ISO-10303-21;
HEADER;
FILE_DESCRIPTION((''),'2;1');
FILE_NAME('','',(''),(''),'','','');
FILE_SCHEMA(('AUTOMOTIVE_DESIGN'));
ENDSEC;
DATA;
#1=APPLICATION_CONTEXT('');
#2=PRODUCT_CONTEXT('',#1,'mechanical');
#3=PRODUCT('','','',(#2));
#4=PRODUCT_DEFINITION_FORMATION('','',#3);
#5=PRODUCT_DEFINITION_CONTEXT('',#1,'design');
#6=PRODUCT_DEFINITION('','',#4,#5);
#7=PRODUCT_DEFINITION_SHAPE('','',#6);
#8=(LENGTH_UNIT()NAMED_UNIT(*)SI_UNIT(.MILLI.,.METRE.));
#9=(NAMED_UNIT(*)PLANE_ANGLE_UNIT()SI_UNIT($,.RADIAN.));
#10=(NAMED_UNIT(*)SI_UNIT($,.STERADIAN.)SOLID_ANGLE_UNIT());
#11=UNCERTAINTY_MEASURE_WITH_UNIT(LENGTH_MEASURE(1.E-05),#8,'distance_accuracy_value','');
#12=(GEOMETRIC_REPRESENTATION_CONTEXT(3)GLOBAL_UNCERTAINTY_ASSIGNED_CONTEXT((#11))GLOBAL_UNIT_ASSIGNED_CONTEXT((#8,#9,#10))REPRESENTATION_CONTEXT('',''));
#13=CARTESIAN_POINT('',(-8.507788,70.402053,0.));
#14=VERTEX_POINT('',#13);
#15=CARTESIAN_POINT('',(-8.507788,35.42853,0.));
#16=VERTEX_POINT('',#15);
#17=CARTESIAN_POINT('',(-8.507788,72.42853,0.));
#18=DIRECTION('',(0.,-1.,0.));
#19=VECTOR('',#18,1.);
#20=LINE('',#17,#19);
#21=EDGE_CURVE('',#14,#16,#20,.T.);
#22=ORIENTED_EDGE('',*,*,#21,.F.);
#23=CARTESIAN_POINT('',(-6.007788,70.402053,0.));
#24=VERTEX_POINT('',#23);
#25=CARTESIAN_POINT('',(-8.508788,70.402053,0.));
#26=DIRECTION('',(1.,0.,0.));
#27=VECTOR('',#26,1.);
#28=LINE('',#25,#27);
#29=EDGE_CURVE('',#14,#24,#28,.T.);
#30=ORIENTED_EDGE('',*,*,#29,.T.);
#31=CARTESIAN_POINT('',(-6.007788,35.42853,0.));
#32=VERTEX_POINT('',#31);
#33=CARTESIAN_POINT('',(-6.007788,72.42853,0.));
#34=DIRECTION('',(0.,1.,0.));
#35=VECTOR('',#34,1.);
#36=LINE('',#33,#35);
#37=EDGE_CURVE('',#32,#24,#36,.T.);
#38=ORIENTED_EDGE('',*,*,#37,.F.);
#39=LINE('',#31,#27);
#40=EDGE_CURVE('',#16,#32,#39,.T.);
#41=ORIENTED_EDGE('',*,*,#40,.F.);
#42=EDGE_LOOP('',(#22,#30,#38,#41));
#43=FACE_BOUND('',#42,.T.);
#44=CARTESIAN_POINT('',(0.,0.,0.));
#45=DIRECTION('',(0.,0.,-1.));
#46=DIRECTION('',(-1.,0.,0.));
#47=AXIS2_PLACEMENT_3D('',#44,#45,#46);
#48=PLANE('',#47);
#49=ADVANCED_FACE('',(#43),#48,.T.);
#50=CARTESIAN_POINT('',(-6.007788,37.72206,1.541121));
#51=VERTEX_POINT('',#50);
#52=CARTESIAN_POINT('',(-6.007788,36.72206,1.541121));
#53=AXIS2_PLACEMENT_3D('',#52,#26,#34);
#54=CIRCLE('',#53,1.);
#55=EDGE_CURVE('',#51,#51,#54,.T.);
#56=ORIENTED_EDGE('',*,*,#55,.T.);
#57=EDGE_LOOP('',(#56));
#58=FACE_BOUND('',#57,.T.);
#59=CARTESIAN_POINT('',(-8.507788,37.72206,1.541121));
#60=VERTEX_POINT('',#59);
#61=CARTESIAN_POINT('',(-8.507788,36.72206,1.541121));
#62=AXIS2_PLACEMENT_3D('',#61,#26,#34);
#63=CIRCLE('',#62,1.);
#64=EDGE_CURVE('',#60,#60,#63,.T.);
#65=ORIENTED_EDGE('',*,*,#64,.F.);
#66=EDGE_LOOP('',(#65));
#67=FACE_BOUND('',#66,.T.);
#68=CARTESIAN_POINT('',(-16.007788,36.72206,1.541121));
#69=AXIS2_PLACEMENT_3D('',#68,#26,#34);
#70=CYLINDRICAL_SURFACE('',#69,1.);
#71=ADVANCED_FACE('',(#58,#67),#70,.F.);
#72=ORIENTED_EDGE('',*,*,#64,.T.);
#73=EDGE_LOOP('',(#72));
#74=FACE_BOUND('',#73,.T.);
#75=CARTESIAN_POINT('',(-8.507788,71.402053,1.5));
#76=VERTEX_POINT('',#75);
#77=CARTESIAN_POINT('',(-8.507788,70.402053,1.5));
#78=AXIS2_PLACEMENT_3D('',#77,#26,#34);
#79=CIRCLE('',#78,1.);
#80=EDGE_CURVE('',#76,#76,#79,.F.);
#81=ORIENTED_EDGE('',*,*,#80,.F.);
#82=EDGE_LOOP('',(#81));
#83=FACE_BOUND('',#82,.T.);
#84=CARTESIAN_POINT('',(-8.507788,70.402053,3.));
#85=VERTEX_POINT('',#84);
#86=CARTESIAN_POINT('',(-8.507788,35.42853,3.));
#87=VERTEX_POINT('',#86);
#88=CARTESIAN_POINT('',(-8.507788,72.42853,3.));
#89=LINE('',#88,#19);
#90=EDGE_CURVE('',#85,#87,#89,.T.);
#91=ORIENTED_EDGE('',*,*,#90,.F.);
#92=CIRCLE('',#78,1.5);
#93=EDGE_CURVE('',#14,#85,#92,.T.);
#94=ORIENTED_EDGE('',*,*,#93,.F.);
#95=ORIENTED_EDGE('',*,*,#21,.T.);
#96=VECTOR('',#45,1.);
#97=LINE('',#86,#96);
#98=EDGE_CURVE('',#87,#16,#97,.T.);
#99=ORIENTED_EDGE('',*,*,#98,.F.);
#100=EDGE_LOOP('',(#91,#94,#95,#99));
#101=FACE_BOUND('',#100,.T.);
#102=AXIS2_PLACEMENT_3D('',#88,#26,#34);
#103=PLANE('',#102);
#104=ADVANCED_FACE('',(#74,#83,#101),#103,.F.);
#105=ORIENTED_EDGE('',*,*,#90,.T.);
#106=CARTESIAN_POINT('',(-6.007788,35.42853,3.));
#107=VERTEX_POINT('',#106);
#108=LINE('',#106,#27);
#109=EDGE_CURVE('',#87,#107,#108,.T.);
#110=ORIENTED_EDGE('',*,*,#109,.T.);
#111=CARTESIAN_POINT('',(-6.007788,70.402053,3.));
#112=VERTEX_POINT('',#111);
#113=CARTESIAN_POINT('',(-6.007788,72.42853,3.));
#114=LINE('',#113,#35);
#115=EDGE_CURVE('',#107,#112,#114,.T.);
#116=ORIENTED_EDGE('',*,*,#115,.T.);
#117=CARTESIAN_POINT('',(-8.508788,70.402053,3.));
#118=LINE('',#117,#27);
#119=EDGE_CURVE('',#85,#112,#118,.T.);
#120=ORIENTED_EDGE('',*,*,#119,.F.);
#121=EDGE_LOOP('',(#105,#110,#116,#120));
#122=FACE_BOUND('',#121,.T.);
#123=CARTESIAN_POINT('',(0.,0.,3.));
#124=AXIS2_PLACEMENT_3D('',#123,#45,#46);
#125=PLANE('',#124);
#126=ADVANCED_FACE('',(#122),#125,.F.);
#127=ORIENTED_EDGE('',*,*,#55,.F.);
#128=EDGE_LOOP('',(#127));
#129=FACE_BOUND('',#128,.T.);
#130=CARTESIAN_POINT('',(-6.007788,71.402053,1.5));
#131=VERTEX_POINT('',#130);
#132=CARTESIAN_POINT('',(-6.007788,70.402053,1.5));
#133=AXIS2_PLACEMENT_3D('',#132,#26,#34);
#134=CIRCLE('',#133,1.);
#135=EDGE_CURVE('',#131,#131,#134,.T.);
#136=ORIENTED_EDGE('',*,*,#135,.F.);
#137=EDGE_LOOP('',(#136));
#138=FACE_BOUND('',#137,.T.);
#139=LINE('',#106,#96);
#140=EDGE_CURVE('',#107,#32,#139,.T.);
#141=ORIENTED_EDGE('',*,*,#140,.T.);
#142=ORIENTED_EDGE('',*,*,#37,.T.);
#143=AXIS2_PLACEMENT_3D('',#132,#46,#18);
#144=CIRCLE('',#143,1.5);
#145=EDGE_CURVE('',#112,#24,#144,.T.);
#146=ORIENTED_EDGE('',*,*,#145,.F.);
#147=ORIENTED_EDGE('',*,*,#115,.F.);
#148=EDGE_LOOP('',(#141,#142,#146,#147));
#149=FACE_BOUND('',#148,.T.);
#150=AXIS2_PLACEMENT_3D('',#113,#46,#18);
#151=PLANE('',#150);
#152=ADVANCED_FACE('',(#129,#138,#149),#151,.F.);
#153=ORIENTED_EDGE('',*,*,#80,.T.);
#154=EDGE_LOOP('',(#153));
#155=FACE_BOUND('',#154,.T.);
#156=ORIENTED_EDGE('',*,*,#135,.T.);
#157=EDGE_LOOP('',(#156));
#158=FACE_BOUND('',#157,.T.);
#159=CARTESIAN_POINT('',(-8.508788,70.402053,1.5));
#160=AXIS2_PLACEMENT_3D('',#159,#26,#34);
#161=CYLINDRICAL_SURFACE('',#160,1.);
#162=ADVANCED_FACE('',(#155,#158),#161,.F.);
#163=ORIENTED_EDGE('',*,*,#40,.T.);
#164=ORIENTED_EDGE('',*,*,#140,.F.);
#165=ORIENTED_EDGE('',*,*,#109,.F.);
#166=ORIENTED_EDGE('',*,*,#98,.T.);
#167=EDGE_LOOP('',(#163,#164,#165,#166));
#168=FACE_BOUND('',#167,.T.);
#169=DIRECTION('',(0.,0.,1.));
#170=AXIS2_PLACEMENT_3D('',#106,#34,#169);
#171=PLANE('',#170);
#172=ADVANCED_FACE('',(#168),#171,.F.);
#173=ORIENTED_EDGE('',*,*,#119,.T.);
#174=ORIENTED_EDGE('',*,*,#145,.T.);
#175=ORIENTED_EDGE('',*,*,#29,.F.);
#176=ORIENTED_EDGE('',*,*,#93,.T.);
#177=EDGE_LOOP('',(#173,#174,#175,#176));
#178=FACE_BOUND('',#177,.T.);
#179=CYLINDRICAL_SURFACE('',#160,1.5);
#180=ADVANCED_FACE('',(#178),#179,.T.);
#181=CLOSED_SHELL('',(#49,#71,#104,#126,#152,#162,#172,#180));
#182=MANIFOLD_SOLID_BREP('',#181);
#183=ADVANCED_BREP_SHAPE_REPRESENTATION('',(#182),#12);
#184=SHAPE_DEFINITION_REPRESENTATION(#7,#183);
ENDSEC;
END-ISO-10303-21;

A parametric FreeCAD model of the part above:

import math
import FreeCAD as App
import Part
import Sketcher
from FreeCAD import Vector

doc = App.newDocument("Part")
body = doc.addObject("PartDesign::Body", "Body")

sketch1 = doc.addObject("Sketcher::SketchObject", "Sketch")
body.addObject(sketch1)
sketch1.AttachmentSupport = (doc.XY_Plane, [""])
sketch1.MapMode = "FlatFace"
sketch1.addGeometry(Part.LineSegment(Vector(-8.5, 72.4, 0), Vector(-8.5, 35.4, 0)), False)
sketch1.addGeometry(Part.LineSegment(Vector(-8.5, 35.4, 0), Vector(-6, 35.4, 0)), False)
sketch1.addGeometry(Part.LineSegment(Vector(-6, 35.4, 0), Vector(-6, 72.4, 0)), False)
sketch1.addGeometry(Part.LineSegment(Vector(-6, 72.4, 0), Vector(-8.5, 72.4, 0)), False)
sketch1.addConstraint(Sketcher.Constraint("Coincident", 0, 2, 1, 1))
sketch1.addConstraint(Sketcher.Constraint("Coincident", 1, 2, 2, 1))
sketch1.addConstraint(Sketcher.Constraint("Coincident", 2, 2, 3, 1))
sketch1.addConstraint(Sketcher.Constraint("Coincident", 3, 2, 0, 1))
sketch1.addConstraint(Sketcher.Constraint("Vertical", 0))
sketch1.addConstraint(Sketcher.Constraint("Horizontal", 1))
sketch1.addConstraint(Sketcher.Constraint("Vertical", 2))
sketch1.addConstraint(Sketcher.Constraint("Horizontal", 3))
sketch1.addConstraint(Sketcher.Constraint("DistanceY", 0, 2, 0, 1, 37.0))
sketch1.addConstraint(Sketcher.Constraint("DistanceX", 1, 1, 1, 2, 2.5))
sketch1.addConstraint(Sketcher.Constraint("DistanceY", -1, 1, 0, 2, 35.42853))
sketch1.addConstraint(Sketcher.Constraint("DistanceX", 0, 2, -1, 1, 8.507788))
pad1 = doc.addObject("PartDesign::Pad", "Pad")
body.addObject(pad1)
pad1.Profile = sketch1
pad1.Length = 3

sketch2 = doc.addObject("Sketcher::SketchObject", "Sketch001")
body.addObject(sketch2)
sketch2.AttachmentSupport = (doc.YZ_Plane, [""])
sketch2.MapMode = "FlatFace"
sketch2.AttachmentOffset = App.Placement(Vector(0, 0, -6.007788), App.Rotation())
sketch2.addGeometry(Part.Circle(Vector(70.4, 1.5, 0), Vector(0, 0, 1), 1), False)
sketch2.addConstraint(Sketcher.Constraint("Diameter", 0, 2.0))
sketch2.addConstraint(Sketcher.Constraint("DistanceY", -1, 1, 0, 3, 1.5))
sketch2.addConstraint(Sketcher.Constraint("DistanceX", -1, 1, 0, 3, 70.402053))
pocket1 = doc.addObject("PartDesign::Pocket", "Pocket")
body.addObject(pocket1)
pocket1.Profile = sketch2
pocket1.Type = "UpToFirst"

sketch3 = doc.addObject("Sketcher::SketchObject", "Sketch002")
body.addObject(sketch3)
sketch3.AttachmentSupport = (doc.YZ_Plane, [""])
sketch3.MapMode = "FlatFace"
sketch3.AttachmentOffset = App.Placement(Vector(0, 0, -6.007788), App.Rotation())
sketch3.addGeometry(Part.LineSegment(Vector(72.4, 3, 0), Vector(70.4, 3, 0)), False)
sketch3.addGeometry(Part.ArcOfCircle(Part.Circle(Vector(70.4, 1.5, 0), Vector(0, 0, 1), 1.5), math.radians(-90), math.radians(90)), False)
sketch3.addGeometry(Part.LineSegment(Vector(70.4, 0, 0), Vector(72.4, 0, 0)), False)
sketch3.addGeometry(Part.LineSegment(Vector(72.4, 0, 0), Vector(72.4, 3, 0)), False)
sketch3.addConstraint(Sketcher.Constraint("Tangent", 0, 2, 1, 2))
sketch3.addConstraint(Sketcher.Constraint("Tangent", 1, 1, 2, 1))
sketch3.addConstraint(Sketcher.Constraint("Coincident", 2, 2, 3, 1))
sketch3.addConstraint(Sketcher.Constraint("Coincident", 3, 2, 0, 1))
sketch3.addConstraint(Sketcher.Constraint("Horizontal", 0))
sketch3.addConstraint(Sketcher.Constraint("Horizontal", 2))
sketch3.addConstraint(Sketcher.Constraint("Vertical", 3))
sketch3.addConstraint(Sketcher.Constraint("PointOnObject", 1, 1, -1))
sketch3.addConstraint(Sketcher.Constraint("Radius", 1, 1.5))
sketch3.addConstraint(Sketcher.Constraint("DistanceX", 0, 2, 0, 1, 2.026477))
sketch3.addConstraint(Sketcher.Constraint("DistanceX", -1, 1, 2, 2, 72.42853))
pocket2 = doc.addObject("PartDesign::Pocket", "Pocket001")
body.addObject(pocket2)
pocket2.Profile = sketch3
pocket2.Type = "UpToFirst"

sketch4 = doc.addObject("Sketcher::SketchObject", "Sketch003")
body.addObject(sketch4)
sketch4.AttachmentSupport = (doc.YZ_Plane, [""])
sketch4.MapMode = "FlatFace"
sketch4.AttachmentOffset = App.Placement(Vector(0, 0, -6.007788), App.Rotation())
sketch4.addGeometry(Part.Circle(Vector(36.7, 1.5, 0), Vector(0, 0, 1), 1), False)
sketch4.addConstraint(Sketcher.Constraint("Diameter", 0, 2.0))
sketch4.addConstraint(Sketcher.Constraint("DistanceX", -1, 1, 0, 3, 36.72206))
sketch4.addConstraint(Sketcher.Constraint("DistanceY", -1, 1, 0, 3, 1.541121))
pocket3 = doc.addObject("PartDesign::Pocket", "Pocket002")
body.addObject(pocket3)
pocket3.Profile = sketch4
pocket3.Length = 10

doc.recompute()
